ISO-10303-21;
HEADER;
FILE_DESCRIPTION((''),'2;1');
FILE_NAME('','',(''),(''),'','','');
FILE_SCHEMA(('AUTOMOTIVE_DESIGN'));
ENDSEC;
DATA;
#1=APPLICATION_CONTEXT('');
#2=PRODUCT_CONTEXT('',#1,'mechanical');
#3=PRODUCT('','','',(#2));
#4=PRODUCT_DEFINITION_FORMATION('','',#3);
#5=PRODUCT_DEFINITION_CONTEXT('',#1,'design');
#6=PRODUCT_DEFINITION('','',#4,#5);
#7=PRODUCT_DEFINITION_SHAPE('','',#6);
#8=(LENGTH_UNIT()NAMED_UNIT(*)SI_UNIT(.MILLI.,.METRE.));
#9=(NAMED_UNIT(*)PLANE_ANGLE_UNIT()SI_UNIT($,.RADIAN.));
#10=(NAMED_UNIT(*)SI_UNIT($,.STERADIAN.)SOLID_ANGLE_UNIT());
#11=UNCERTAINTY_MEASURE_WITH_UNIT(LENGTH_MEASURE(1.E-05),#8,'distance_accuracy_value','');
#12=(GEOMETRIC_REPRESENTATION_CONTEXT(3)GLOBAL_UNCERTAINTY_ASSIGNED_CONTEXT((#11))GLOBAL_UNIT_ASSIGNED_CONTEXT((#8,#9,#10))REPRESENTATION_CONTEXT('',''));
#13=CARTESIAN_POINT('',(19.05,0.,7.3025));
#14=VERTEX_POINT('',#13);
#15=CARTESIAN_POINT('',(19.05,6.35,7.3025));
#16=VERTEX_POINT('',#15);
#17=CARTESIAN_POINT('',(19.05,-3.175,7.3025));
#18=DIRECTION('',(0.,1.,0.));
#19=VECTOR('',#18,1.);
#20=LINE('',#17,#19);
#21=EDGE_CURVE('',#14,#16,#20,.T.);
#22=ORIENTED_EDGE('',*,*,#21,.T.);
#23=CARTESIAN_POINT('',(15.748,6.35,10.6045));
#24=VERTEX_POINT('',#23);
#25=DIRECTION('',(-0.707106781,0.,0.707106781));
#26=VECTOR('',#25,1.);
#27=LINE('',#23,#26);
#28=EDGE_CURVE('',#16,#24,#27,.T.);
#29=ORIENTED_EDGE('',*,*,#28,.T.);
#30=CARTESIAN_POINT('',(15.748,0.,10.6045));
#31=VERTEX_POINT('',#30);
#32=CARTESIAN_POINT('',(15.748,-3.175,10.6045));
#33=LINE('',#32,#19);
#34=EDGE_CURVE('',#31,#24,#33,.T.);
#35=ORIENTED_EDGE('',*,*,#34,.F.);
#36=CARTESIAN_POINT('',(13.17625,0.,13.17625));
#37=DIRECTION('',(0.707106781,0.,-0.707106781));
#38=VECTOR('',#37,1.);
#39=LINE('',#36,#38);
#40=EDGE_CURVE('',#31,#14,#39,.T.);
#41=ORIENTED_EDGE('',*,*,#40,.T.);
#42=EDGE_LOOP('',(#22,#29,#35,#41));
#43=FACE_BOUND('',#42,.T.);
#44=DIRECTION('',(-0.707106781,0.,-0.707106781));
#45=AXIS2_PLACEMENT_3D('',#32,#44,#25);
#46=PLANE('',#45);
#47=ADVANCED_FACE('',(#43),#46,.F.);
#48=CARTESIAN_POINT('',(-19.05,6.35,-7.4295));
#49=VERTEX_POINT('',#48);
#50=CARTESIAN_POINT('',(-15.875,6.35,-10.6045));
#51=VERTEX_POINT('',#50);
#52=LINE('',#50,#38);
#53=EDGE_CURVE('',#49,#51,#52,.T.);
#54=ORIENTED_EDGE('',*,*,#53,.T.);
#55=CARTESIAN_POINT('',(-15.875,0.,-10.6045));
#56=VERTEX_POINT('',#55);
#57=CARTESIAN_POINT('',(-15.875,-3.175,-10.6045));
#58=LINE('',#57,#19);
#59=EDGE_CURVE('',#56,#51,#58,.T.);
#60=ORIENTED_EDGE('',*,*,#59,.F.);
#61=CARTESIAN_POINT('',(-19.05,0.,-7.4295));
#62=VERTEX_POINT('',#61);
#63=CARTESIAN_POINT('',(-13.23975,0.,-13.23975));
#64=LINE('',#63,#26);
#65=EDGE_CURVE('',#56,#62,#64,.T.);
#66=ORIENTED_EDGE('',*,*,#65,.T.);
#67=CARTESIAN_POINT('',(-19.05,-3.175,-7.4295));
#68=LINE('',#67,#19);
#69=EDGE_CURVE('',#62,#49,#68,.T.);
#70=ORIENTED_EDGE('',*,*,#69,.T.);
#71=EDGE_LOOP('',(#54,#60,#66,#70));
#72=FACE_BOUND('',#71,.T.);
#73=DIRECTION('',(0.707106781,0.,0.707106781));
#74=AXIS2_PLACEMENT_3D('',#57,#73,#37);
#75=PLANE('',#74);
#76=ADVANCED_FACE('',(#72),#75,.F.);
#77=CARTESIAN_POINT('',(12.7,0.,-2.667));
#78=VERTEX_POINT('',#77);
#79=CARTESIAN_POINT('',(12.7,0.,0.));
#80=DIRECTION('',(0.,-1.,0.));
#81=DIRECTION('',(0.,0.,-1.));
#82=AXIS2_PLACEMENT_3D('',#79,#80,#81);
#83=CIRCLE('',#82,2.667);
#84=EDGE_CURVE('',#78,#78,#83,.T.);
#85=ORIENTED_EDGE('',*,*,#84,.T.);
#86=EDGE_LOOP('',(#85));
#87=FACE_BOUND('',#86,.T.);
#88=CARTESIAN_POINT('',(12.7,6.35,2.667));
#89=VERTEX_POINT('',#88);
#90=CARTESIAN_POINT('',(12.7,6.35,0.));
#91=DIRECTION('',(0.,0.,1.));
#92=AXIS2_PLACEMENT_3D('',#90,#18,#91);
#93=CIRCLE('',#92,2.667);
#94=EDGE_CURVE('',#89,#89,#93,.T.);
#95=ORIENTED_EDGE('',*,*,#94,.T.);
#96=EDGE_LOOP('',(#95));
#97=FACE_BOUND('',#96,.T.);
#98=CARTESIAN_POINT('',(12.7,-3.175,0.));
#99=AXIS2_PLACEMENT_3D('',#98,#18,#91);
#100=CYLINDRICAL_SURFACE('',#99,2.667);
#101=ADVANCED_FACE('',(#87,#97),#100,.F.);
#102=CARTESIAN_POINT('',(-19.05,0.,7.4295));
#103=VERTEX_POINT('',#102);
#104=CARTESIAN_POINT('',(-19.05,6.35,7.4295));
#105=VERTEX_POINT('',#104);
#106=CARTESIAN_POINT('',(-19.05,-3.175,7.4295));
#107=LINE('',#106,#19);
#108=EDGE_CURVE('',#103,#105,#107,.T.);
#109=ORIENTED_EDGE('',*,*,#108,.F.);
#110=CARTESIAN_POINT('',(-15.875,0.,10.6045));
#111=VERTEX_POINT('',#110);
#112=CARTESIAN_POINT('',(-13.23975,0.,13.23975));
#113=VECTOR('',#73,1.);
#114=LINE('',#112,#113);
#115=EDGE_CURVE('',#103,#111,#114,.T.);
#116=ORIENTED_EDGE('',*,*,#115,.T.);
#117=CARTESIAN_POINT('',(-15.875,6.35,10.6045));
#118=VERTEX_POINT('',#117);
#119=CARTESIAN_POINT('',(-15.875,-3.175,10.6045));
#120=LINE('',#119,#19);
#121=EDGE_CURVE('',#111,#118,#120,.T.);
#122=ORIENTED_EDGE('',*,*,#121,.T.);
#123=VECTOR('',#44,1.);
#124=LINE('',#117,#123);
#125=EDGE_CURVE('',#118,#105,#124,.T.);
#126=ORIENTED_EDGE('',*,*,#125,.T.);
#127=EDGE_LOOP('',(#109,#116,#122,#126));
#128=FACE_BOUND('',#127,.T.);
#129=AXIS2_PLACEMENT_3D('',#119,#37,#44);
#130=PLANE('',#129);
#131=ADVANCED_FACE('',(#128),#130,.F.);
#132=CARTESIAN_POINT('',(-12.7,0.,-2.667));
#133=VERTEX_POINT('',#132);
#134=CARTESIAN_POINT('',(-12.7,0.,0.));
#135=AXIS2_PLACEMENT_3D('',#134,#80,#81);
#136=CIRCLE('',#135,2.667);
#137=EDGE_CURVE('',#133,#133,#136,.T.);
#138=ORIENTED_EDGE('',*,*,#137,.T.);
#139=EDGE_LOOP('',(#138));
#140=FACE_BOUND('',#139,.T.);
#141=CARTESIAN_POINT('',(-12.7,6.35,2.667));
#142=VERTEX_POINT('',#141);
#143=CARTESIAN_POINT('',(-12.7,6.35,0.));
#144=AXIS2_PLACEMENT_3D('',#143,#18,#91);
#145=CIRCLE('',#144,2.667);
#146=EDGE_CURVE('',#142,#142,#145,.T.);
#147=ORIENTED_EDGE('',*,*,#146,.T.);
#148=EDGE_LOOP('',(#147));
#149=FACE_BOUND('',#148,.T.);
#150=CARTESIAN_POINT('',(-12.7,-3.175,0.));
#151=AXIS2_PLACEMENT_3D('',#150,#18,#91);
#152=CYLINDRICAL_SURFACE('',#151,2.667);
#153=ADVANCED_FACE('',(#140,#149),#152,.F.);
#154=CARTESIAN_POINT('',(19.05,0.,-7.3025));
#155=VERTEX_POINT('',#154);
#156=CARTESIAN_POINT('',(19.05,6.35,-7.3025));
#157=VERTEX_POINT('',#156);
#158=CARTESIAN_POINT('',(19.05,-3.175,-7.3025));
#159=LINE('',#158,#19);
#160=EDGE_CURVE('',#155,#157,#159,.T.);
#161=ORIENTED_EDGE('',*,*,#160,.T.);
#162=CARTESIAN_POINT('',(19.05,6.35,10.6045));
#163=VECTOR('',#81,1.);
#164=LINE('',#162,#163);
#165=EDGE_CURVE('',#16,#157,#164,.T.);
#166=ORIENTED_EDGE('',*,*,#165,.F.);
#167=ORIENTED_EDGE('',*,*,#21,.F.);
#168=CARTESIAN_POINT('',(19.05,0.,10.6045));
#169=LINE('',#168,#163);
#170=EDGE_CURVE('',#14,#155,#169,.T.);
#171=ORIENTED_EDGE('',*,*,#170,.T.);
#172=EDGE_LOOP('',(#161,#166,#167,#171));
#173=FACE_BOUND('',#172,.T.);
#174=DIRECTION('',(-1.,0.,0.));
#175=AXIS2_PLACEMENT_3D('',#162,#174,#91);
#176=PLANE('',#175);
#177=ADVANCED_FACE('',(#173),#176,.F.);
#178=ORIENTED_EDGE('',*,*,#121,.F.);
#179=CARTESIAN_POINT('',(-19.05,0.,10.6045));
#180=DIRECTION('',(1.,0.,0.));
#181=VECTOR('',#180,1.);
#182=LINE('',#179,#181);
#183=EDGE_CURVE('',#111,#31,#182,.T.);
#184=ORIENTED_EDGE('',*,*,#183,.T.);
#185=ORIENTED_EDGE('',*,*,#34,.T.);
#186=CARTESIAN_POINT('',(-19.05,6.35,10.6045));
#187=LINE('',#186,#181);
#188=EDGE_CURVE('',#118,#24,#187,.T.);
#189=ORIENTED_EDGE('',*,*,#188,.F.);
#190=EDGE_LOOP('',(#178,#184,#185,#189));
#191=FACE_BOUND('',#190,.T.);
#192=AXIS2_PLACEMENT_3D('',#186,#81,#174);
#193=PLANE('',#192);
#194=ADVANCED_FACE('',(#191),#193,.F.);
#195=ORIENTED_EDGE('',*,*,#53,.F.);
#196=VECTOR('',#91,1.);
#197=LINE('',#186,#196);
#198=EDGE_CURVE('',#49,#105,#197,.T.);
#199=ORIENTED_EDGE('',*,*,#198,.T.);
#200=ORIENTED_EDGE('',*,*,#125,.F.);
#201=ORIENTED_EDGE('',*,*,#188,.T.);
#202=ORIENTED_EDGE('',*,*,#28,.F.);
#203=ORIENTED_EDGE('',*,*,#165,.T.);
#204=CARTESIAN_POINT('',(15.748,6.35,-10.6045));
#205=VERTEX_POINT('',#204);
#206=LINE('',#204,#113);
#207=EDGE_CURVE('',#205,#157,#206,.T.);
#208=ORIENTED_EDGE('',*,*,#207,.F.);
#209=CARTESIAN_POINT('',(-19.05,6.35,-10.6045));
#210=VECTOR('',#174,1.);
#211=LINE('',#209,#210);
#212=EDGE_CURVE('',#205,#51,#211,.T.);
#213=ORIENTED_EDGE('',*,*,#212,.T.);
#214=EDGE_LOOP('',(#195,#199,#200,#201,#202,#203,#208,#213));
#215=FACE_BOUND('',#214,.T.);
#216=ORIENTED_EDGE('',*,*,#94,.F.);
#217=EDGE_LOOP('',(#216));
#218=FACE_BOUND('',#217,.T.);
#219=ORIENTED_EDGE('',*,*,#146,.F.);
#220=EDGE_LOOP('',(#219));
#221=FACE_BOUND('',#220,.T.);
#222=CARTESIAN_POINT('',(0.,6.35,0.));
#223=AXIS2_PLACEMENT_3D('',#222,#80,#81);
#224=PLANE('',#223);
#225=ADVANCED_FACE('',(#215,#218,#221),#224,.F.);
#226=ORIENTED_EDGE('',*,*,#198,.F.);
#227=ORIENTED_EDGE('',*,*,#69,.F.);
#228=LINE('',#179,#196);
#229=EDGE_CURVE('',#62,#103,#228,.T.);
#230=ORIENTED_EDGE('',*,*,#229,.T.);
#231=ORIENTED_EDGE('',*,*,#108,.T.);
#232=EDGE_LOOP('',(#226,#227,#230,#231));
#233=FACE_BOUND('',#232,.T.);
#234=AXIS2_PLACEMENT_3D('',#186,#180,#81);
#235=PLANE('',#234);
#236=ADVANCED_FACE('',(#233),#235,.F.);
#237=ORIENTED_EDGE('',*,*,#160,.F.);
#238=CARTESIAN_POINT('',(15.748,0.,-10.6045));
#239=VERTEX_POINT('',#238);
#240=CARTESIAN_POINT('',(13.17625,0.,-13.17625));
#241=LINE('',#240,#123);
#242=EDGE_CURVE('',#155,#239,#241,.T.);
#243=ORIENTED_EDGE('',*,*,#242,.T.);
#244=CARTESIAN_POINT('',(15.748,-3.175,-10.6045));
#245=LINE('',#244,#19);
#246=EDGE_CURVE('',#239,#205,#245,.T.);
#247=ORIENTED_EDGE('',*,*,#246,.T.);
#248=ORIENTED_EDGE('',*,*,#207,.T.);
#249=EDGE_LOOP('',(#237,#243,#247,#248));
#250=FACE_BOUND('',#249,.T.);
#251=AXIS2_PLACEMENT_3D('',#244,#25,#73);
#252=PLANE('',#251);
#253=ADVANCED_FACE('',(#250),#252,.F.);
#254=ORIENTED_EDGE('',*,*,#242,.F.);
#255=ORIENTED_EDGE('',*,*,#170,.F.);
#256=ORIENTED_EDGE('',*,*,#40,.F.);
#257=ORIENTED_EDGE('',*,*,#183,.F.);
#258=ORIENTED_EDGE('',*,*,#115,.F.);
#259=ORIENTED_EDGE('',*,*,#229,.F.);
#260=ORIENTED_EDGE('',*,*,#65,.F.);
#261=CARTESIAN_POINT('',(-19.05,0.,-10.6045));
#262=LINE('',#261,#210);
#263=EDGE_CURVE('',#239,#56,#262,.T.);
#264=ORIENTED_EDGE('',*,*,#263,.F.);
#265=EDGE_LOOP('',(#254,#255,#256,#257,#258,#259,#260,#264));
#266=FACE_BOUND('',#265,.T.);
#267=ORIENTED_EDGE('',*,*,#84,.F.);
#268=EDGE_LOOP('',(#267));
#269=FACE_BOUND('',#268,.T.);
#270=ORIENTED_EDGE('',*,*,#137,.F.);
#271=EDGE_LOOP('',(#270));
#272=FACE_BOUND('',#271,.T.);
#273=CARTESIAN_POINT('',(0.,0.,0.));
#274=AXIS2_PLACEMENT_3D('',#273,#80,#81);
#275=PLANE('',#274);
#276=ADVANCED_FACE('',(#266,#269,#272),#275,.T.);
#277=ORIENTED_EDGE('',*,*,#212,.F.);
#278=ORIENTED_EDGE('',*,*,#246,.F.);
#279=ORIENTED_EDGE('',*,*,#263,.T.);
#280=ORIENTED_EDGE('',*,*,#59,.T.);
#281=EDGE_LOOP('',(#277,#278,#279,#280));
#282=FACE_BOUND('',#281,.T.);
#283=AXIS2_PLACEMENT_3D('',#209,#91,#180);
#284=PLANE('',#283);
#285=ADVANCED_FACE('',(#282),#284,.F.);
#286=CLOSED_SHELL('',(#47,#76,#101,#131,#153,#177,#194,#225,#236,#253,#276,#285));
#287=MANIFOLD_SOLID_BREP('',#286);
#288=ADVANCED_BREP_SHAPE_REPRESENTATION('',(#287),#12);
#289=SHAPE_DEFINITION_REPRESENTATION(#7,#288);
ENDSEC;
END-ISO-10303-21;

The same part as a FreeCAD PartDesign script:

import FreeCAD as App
import Part
import Sketcher
Q = App.Units.Quantity


def add_polygon(sketch, points):
    """Adds a closed chain of lines whose ends are joined by coincident constraints."""
    first, n = sketch.GeometryCount, len(points)
    for a, b in zip(points, points[1:] + points[:1]):
        sketch.addGeometry(Part.LineSegment(App.Vector(*a, 0), App.Vector(*b, 0)), False)
    for i in range(n):
        sketch.addConstraint(Sketcher.Constraint("Coincident", first + i, 2, first + (i + 1) % n, 1))

doc = App.newDocument("Part")
params = doc.addObject("Spreadsheet::Sheet", "Params")
for row, (alias, value) in enumerate([
    ("sketch1_width", "1.5 in"),
    ("sketch1_height", "0.835 in"),
    ("pad1_length", "0.25 in"),
    ("sketch2_diameter", "0.21 in"),
    ("pocket1_length", "0.375 in"),
    ("sketch3_width", "0.13 in"),
    ("sketch3_width2", "0.125 in"),
    ("pocket2_length", "0.375 in"),
], start=1):
    params.set(f"A{row}", alias)
    params.set(f"B{row}", "=" + value)
    params.setAlias(f"B{row}", alias)

body = doc.addObject("PartDesign::Body", "Body")

# Sketch on XZ plane
sketch1 = doc.addObject("Sketcher::SketchObject", "Sketch")
body.addObject(sketch1)
sketch1.AttachmentSupport = (doc.XZ_Plane, [""])
sketch1.MapMode = "FlatFace"
add_polygon(sketch1, [(-19.05, -10.6045), (-19.05, 10.6045), (19.05, 10.6045), (19.05, -10.6045)])  # lines 0-3
sketch1.addConstraint([
    Sketcher.Constraint("Vertical", 0),
    Sketcher.Constraint("Horizontal", 1),
    Sketcher.Constraint("Vertical", 2),
    Sketcher.Constraint("Horizontal", 3),
    Sketcher.Constraint("Symmetric", 0, 2, 2, 2, -1, 1),
    Sketcher.Constraint("DistanceX", 1, 1, 1, 2, Q("1.5 in")),
    Sketcher.Constraint("DistanceY", 0, 1, 0, 2, Q("0.835 in")),
])
sketch1.setExpression("Constraints[9]", "Params.sketch1_width")
sketch1.setExpression("Constraints[10]", "Params.sketch1_height")
pad1 = doc.addObject("PartDesign::Pad", "Pad")
body.addObject(pad1)
pad1.Profile = sketch1
pad1.setExpression("Length", "Params.pad1_length")
pad1.Reversed = True

# Sketch on XZ plane
sketch2 = doc.addObject("Sketcher::SketchObject", "Sketch001")
body.addObject(sketch2)
sketch2.AttachmentSupport = (doc.XZ_Plane, [""])
sketch2.MapMode = "FlatFace"
sketch2.AttachmentOffset = App.Placement(App.Vector(0, 0, -0.25 * 25.4), App.Rotation())
sketch2.addGeometry([
    Part.Circle(App.Vector(-12.7, 0, 0), App.Vector(0, 0, 1), 2.667),
    Part.Circle(App.Vector(12.7, 0, 0), App.Vector(0, 0, 1), 2.667),
], False)
sketch2.addConstraint([
    Sketcher.Constraint("Equal", 0, 1),
    Sketcher.Constraint("Symmetric", 0, 3, 1, 3, -1, 1),
    Sketcher.Constraint("PointOnObject", 0, 3, -1),
    Sketcher.Constraint("Diameter", 0, Q("0.21 in")),
    Sketcher.Constraint("DistanceX", 0, 3, 1, 3, Q("1 in")),
])
sketch2.setExpression("Constraints[3]", "Params.sketch2_diameter")
pocket1 = doc.addObject("PartDesign::Pocket", "Pocket")
body.addObject(pocket1)
pocket1.Profile = sketch2
pocket1.setExpression("Length", "Params.pocket1_length")
pocket1.Reversed = True

# Sketch on XZ plane
sketch3 = doc.addObject("Sketcher::SketchObject", "Sketch002")
body.addObject(sketch3)
sketch3.AttachmentSupport = (doc.XZ_Plane, [""])
sketch3.MapMode = "FlatFace"
sketch3.AttachmentOffset = App.Placement(App.Vector(0, 0, -0.25 * 25.4), App.Rotation())
add_polygon(sketch3, [(-15.875, -10.6045), (-19.05, -10.6045), (-19.05, -7.4295)])  # lines 0-2
add_polygon(sketch3, [(19.05, -10.6045), (15.748, -10.6045), (19.05, -7.3025)])  # lines 3-5
add_polygon(sketch3, [(15.748, 10.6045), (19.05, 10.6045), (19.05, 7.3025)])  # lines 6-8
add_polygon(sketch3, [(-19.05, 10.6045), (-15.875, 10.6045), (-19.05, 7.4295)])  # lines 9-11
sketch3.addConstraint([
    Sketcher.Constraint("Horizontal", 0),
    Sketcher.Constraint("Vertical", 1),
    Sketcher.Constraint("Horizontal", 3),
    Sketcher.Constraint("Vertical", 5),
    Sketcher.Constraint("Horizontal", 6),
    Sketcher.Constraint("Vertical", 7),
    Sketcher.Constraint("Horizontal", 9),
    Sketcher.Constraint("Vertical", 11),
    Sketcher.Constraint("Symmetric", 0, 2, 6, 2, -1, 1),
    Sketcher.Constraint("Symmetric", 5, 2, 11, 2, -1, 1),
    Sketcher.Constraint("Symmetric", 0, 2, 5, 2, -2),
    Sketcher.Constraint("Perpendicular", 2, 4),
    Sketcher.Constraint("Perpendicular", 4, 8),
    Sketcher.Constraint("Perpendicular", 8, 10),
    Sketcher.Constraint("Vertical", 3, 2, 8, 2),
    Sketcher.Constraint("Vertical", 2, 2, 9, 2),
    Sketcher.Constraint("Equal", 9, 1),
    Sketcher.Constraint("DistanceX", 3, 2, 3, 1, Q("0.13 in")),
    Sketcher.Constraint("DistanceX", 1, 2, 4, 2, Q("1.5 in")),
    Sketcher.Constraint("DistanceX", 0, 2, 0, 1, Q("0.125 in")),
    Sketcher.Constraint("DistanceY", 1, 2, 6, 2, Q("0.71 in")),
])
sketch3.setExpression("Constraints[29]", "Params.sketch3_width")
sketch3.setExpression("Constraints[31]", "Params.sketch3_width2")
pocket2 = doc.addObject("PartDesign::Pocket", "Pocket001")
body.addObject(pocket2)
pocket2.Profile = sketch3
pocket2.setExpression("Length", "Params.pocket2_length")
pocket2.Reversed = True

doc.recompute()
